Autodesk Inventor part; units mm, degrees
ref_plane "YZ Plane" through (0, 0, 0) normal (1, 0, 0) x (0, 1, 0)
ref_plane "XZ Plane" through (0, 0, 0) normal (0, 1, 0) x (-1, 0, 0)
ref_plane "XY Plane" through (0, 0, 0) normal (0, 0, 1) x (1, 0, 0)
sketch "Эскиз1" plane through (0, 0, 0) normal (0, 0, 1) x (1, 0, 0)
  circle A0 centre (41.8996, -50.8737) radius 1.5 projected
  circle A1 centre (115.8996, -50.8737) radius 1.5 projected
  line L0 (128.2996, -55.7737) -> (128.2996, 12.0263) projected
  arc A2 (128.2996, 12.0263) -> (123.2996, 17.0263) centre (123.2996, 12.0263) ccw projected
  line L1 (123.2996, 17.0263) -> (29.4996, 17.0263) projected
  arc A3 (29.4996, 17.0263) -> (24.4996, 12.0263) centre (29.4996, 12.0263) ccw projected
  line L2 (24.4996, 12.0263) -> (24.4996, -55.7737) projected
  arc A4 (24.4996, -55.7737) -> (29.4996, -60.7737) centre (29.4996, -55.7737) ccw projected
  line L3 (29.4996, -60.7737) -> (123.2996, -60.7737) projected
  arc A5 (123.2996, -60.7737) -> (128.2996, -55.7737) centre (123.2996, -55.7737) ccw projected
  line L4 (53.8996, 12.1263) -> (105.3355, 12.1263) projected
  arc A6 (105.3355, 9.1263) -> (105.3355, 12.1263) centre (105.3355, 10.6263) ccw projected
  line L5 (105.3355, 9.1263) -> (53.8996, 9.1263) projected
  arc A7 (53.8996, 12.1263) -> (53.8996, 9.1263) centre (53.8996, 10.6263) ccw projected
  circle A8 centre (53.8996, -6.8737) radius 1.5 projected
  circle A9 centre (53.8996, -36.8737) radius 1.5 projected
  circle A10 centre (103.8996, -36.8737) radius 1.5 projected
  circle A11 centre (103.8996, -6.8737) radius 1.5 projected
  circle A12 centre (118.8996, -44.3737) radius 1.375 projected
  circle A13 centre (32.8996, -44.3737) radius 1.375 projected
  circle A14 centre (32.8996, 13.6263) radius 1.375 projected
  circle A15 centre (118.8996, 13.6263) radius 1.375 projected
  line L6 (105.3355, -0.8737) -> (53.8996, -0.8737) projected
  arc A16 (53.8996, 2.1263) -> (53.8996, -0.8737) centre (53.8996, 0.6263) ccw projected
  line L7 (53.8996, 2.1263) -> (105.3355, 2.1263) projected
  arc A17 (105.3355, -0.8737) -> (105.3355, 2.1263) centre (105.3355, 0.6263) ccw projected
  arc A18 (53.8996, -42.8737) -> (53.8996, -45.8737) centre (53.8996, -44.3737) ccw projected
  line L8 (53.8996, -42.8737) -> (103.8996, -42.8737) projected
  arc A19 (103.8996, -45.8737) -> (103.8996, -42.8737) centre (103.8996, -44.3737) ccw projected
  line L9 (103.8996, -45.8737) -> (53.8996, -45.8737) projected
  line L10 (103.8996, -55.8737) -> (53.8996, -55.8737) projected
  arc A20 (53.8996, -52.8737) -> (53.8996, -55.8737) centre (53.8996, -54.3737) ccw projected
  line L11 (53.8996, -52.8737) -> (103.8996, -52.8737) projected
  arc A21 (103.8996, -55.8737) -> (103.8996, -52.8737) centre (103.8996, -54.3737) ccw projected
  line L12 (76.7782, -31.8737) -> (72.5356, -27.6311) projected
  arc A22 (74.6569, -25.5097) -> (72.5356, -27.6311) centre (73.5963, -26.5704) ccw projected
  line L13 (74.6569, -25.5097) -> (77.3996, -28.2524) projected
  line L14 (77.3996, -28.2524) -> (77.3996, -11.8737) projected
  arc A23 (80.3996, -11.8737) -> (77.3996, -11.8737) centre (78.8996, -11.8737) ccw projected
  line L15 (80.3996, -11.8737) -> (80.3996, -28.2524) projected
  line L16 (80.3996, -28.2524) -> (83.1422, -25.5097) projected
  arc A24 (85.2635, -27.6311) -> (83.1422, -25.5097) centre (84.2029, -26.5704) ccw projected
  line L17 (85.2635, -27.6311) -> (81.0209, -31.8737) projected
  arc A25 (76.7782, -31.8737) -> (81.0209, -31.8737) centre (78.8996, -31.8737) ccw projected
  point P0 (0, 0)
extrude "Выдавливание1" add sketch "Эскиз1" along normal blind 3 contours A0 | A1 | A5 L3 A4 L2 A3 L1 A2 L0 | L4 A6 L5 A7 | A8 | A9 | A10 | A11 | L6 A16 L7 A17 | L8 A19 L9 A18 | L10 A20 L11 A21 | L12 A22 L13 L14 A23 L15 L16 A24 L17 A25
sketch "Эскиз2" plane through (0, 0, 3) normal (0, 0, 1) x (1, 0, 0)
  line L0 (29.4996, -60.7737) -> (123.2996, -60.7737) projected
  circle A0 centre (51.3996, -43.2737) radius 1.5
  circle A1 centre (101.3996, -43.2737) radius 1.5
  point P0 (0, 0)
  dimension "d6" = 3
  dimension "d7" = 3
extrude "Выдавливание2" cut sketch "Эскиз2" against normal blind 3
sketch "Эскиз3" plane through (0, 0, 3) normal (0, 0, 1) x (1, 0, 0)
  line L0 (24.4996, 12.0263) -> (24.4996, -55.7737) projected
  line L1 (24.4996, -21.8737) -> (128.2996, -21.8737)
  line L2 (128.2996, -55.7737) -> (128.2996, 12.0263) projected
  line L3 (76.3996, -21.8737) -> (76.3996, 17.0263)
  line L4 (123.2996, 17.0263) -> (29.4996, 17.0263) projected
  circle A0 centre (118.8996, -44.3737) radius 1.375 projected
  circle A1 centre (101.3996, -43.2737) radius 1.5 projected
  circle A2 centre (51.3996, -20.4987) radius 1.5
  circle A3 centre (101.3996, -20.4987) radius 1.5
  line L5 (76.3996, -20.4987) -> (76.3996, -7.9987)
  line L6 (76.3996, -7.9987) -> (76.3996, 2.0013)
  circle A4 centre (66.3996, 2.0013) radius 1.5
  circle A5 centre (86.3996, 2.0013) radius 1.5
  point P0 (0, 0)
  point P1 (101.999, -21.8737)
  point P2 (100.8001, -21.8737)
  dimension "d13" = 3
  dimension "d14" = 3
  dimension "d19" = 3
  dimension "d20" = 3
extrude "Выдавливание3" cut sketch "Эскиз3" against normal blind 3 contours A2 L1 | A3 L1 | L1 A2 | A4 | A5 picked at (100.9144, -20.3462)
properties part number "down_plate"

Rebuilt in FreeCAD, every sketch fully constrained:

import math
import FreeCAD as App
import Part
import Sketcher
from FreeCAD import Vector

doc = App.newDocument("Part")
body = doc.addObject("PartDesign::Body", "Body")

# Sketch on XY plane
sketch1 = body.newObject("Sketcher::SketchObject", "Sketch")
sketch1.AttachmentSupport = (doc.getObject("XY_Plane"), [""])
sketch1.MapMode = "FlatFace"
sketch1.addGeometry([
    Part.ArcOfCircle(Part.Circle(Vector(123.3, -55.8, 0), Vector(0, 0, 1), 5), math.radians(-90), math.radians(0)),  # 0
    Part.LineSegment(Vector(128.3, -55.8, 0), Vector(128.3, 12, 0)),  # 1
    Part.ArcOfCircle(Part.Circle(Vector(123.3, 12, 0), Vector(0, 0, 1), 5), math.radians(0), math.radians(90)),  # 2
    Part.LineSegment(Vector(123.3, 17, 0), Vector(29.5, 17, 0)),  # 3
    Part.ArcOfCircle(Part.Circle(Vector(29.5, 12, 0), Vector(0, 0, 1), 5), math.radians(90), math.radians(180)),  # 4
    Part.LineSegment(Vector(24.5, 12, 0), Vector(24.5, -55.8, 0)),  # 5
    Part.ArcOfCircle(Part.Circle(Vector(29.5, -55.8, 0), Vector(0, 0, 1), 5), math.radians(180), math.radians(270)),  # 6
    Part.LineSegment(Vector(29.5, -60.8, 0), Vector(123.3, -60.8, 0)),  # 7
    Part.Circle(Vector(32.9, -44.4, 0), Vector(0, 0, 1), 1.4),  # 8
    Part.Circle(Vector(118.9, 13.6, 0), Vector(0, 0, 1), 1.4),  # 9
    Part.Circle(Vector(118.9, -44.4, 0), Vector(0, 0, 1), 1.4),  # 10
    Part.Circle(Vector(32.9, 13.6, 0), Vector(0, 0, 1), 1.4),  # 11
], False)
sketch1.addConstraint([
    Sketcher.Constraint("Tangent", 0, 2, 1, 1),
    Sketcher.Constraint("Tangent", 1, 2, 2, 1),
    Sketcher.Constraint("Tangent", 2, 2, 3, 1),
    Sketcher.Constraint("Tangent", 3, 2, 4, 1),
    Sketcher.Constraint("Tangent", 4, 2, 5, 1),
    Sketcher.Constraint("Tangent", 5, 2, 6, 1),
    Sketcher.Constraint("Tangent", 6, 2, 7, 1),
    Sketcher.Constraint("Tangent", 7, 2, 0, 1),
    Sketcher.Constraint("Vertical", 1),
    Sketcher.Constraint("Horizontal", 3),
    Sketcher.Constraint("Vertical", 5),
    Sketcher.Constraint("Horizontal", 7),
    Sketcher.Constraint("Equal", 0, 2),
    Sketcher.Constraint("Equal", 2, 4),
    Sketcher.Constraint("Equal", 4, 6),
    Sketcher.Constraint("Equal", 8, 9),
    Sketcher.Constraint("Equal", 9, 10),
    Sketcher.Constraint("Equal", 10, 11),
    Sketcher.Constraint("Horizontal", 8, 3, 10, 3),
    Sketcher.Constraint("Horizontal", 9, 3, 11, 3),
    Sketcher.Constraint("Vertical", 9, 3, 10, 3),
    Sketcher.Constraint("Vertical", 8, 3, 11, 3),
    Sketcher.Constraint("Radius", 0, 5.0),
    Sketcher.Constraint("Diameter", 8, 2.75),
    Sketcher.Constraint("DistanceX", 3, 2, 3, 1, 93.8),
    Sketcher.Constraint("DistanceY", 1, 1, 1, 2, 67.8),
    Sketcher.Constraint("DistanceX", 8, 3, 9, 3, 86.0),
    Sketcher.Constraint("DistanceY", 8, 3, 9, 3, 58.0),
    Sketcher.Constraint("DistanceX", 6, 3, 8, 3, 3.4),
    Sketcher.Constraint("DistanceY", 6, 3, 8, 3, 11.4),
    Sketcher.Constraint("DistanceX", -1, 1, 0, 3, 123.2996),
    Sketcher.Constraint("DistanceY", 0, 3, -1, 1, 55.7737),
])
pad1 = body.newObject("PartDesign::Pad", "Pad")
pad1.Profile = sketch1
pad1.Length = 3

# Sketch on XY plane
sketch2 = body.newObject("Sketcher::SketchObject", "Sketch001")
sketch2.AttachmentSupport = (doc.getObject("XY_Plane"), [""])
sketch2.MapMode = "FlatFace"
sketch2.AttachmentOffset = App.Placement(Vector(0, 0, 3), App.Rotation())
sketch2.addGeometry([
    Part.Circle(Vector(51.4, -43.3, 0), Vector(0, 0, 1), 1.5),
    Part.Circle(Vector(101.4, -43.3, 0), Vector(0, 0, 1), 1.5),
], False)
sketch2.addConstraint([
    Sketcher.Constraint("Equal", 0, 1),
    Sketcher.Constraint("Horizontal", 0, 3, 1, 3),
    Sketcher.Constraint("Diameter", 0, 3.0),
    Sketcher.Constraint("DistanceX", 0, 3, 1, 3, 50.0),
    Sketcher.Constraint("DistanceX", -1, 1, 0, 3, 51.3996),
    Sketcher.Constraint("DistanceY", 0, 3, -1, 1, 43.2737),
])
pocket1 = body.newObject("PartDesign::Pocket", "Pocket")
pocket1.Profile = sketch2
pocket1.Length = 3

# Sketch on XY plane
sketch3 = body.newObject("Sketcher::SketchObject", "Sketch002")
sketch3.AttachmentSupport = (doc.getObject("XY_Plane"), [""])
sketch3.MapMode = "FlatFace"
sketch3.AttachmentOffset = App.Placement(Vector(0, 0, 3), App.Rotation())
sketch3.addGeometry([
    Part.Circle(Vector(51.4, -20.5, 0), Vector(0, 0, 1), 1.5),  # 0
    Part.ArcOfCircle(Part.Circle(Vector(101.4, -20.5, 0), Vector(0, 0, 1), 1.5), math.radians(-66), math.radians(246)),  # 1
    Part.LineSegment(Vector(100.8, -21.9, 0), Vector(102, -21.9, 0)),  # 2
    Part.Circle(Vector(66.4, 2, 0), Vector(0, 0, 1), 1.5),  # 3
    Part.Circle(Vector(86.4, 2, 0), Vector(0, 0, 1), 1.5),  # 4
], False)
sketch3.addConstraint([
    Sketcher.Constraint("Coincident", 1, 1, 2, 2),
    Sketcher.Constraint("Coincident", 2, 1, 1, 2),
    Sketcher.Constraint("Horizontal", 2),
    Sketcher.Constraint("Equal", 0, 1),
    Sketcher.Constraint("Equal", 1, 3),
    Sketcher.Constraint("Equal", 3, 4),
    Sketcher.Constraint("Horizontal", 0, 3, 1, 3),
    Sketcher.Constraint("Horizontal", 3, 3, 4, 3),
    Sketcher.Constraint("Diameter", 0, 3.0),
    Sketcher.Constraint("DistanceX", 0, 3, 1, 3, 50.0),
    Sketcher.Constraint("DistanceX", 0, 3, 3, 3, 15.0),
    Sketcher.Constraint("DistanceX", 3, 3, 4, 3, 20.0),
    Sketcher.Constraint("DistanceY", 0, 3, 3, 3, 22.5),
    Sketcher.Constraint("DistanceX", 2, 1, 2, 2, 1.199),
    Sketcher.Constraint("DistanceX", -1, 1, 1, 1, 101.999),
    Sketcher.Constraint("DistanceY", 0, 3, -1, 1, 20.4987),
])
pocket2 = body.newObject("PartDesign::Pocket", "Pocket001")
pocket2.Profile = sketch3
pocket2.Length = 3

doc.recompute()
